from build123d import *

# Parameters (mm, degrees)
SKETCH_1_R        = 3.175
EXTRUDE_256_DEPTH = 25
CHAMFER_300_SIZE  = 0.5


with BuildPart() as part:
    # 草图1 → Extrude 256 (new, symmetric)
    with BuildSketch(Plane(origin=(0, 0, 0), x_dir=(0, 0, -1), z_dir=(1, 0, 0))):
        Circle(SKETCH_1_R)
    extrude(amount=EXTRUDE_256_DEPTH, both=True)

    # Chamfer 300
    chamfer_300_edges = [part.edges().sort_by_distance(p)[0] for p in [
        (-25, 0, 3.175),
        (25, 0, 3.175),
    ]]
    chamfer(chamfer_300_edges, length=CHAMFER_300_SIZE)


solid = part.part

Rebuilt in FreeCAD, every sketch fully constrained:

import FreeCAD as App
import Part
import Sketcher

V = App.Vector
Q = App.Units.Quantity


def edges_at(feature, points):
    """Names of the edges that pass closest to the given points."""
    edges = feature.Shape.Edges
    near = lambda p: min(range(len(edges)), key=lambda i: edges[i].distToShape(Part.Vertex(*p))[0])
    return sorted({f"Edge{near(p) + 1}" for p in points})

doc = App.newDocument("Part")
body = doc.addObject("PartDesign::Body", "Body")

# Sketch on YZ plane
sketch1 = body.newObject("Sketcher::SketchObject", "Sketch")
sketch1.AttachmentSupport = (doc.getObject("YZ_Plane"), [""])
sketch1.MapMode = "FlatFace"
sketch1.addGeometry(Part.Circle(V(0, 0, 0), V(0, 0, 1), 3.2), False)
sketch1.addConstraint([
    Sketcher.Constraint("Coincident", 0, 3, -1, 1),
    Sketcher.Constraint("Diameter", 0, Q("6.35 mm")),
])
pad1 = body.newObject("PartDesign::Pad", "Pad")
pad1.Profile = sketch1
pad1.Length = 50
pad1.Midplane = True
doc.recompute()

chamfer = body.newObject("PartDesign::Chamfer", "Chamfer")
chamfer.Base = (pad1, edges_at(pad1, [(-25, 0, 3.175), (25, 0, 3.175)]))
chamfer.Size = 0.5

doc.recompute()
